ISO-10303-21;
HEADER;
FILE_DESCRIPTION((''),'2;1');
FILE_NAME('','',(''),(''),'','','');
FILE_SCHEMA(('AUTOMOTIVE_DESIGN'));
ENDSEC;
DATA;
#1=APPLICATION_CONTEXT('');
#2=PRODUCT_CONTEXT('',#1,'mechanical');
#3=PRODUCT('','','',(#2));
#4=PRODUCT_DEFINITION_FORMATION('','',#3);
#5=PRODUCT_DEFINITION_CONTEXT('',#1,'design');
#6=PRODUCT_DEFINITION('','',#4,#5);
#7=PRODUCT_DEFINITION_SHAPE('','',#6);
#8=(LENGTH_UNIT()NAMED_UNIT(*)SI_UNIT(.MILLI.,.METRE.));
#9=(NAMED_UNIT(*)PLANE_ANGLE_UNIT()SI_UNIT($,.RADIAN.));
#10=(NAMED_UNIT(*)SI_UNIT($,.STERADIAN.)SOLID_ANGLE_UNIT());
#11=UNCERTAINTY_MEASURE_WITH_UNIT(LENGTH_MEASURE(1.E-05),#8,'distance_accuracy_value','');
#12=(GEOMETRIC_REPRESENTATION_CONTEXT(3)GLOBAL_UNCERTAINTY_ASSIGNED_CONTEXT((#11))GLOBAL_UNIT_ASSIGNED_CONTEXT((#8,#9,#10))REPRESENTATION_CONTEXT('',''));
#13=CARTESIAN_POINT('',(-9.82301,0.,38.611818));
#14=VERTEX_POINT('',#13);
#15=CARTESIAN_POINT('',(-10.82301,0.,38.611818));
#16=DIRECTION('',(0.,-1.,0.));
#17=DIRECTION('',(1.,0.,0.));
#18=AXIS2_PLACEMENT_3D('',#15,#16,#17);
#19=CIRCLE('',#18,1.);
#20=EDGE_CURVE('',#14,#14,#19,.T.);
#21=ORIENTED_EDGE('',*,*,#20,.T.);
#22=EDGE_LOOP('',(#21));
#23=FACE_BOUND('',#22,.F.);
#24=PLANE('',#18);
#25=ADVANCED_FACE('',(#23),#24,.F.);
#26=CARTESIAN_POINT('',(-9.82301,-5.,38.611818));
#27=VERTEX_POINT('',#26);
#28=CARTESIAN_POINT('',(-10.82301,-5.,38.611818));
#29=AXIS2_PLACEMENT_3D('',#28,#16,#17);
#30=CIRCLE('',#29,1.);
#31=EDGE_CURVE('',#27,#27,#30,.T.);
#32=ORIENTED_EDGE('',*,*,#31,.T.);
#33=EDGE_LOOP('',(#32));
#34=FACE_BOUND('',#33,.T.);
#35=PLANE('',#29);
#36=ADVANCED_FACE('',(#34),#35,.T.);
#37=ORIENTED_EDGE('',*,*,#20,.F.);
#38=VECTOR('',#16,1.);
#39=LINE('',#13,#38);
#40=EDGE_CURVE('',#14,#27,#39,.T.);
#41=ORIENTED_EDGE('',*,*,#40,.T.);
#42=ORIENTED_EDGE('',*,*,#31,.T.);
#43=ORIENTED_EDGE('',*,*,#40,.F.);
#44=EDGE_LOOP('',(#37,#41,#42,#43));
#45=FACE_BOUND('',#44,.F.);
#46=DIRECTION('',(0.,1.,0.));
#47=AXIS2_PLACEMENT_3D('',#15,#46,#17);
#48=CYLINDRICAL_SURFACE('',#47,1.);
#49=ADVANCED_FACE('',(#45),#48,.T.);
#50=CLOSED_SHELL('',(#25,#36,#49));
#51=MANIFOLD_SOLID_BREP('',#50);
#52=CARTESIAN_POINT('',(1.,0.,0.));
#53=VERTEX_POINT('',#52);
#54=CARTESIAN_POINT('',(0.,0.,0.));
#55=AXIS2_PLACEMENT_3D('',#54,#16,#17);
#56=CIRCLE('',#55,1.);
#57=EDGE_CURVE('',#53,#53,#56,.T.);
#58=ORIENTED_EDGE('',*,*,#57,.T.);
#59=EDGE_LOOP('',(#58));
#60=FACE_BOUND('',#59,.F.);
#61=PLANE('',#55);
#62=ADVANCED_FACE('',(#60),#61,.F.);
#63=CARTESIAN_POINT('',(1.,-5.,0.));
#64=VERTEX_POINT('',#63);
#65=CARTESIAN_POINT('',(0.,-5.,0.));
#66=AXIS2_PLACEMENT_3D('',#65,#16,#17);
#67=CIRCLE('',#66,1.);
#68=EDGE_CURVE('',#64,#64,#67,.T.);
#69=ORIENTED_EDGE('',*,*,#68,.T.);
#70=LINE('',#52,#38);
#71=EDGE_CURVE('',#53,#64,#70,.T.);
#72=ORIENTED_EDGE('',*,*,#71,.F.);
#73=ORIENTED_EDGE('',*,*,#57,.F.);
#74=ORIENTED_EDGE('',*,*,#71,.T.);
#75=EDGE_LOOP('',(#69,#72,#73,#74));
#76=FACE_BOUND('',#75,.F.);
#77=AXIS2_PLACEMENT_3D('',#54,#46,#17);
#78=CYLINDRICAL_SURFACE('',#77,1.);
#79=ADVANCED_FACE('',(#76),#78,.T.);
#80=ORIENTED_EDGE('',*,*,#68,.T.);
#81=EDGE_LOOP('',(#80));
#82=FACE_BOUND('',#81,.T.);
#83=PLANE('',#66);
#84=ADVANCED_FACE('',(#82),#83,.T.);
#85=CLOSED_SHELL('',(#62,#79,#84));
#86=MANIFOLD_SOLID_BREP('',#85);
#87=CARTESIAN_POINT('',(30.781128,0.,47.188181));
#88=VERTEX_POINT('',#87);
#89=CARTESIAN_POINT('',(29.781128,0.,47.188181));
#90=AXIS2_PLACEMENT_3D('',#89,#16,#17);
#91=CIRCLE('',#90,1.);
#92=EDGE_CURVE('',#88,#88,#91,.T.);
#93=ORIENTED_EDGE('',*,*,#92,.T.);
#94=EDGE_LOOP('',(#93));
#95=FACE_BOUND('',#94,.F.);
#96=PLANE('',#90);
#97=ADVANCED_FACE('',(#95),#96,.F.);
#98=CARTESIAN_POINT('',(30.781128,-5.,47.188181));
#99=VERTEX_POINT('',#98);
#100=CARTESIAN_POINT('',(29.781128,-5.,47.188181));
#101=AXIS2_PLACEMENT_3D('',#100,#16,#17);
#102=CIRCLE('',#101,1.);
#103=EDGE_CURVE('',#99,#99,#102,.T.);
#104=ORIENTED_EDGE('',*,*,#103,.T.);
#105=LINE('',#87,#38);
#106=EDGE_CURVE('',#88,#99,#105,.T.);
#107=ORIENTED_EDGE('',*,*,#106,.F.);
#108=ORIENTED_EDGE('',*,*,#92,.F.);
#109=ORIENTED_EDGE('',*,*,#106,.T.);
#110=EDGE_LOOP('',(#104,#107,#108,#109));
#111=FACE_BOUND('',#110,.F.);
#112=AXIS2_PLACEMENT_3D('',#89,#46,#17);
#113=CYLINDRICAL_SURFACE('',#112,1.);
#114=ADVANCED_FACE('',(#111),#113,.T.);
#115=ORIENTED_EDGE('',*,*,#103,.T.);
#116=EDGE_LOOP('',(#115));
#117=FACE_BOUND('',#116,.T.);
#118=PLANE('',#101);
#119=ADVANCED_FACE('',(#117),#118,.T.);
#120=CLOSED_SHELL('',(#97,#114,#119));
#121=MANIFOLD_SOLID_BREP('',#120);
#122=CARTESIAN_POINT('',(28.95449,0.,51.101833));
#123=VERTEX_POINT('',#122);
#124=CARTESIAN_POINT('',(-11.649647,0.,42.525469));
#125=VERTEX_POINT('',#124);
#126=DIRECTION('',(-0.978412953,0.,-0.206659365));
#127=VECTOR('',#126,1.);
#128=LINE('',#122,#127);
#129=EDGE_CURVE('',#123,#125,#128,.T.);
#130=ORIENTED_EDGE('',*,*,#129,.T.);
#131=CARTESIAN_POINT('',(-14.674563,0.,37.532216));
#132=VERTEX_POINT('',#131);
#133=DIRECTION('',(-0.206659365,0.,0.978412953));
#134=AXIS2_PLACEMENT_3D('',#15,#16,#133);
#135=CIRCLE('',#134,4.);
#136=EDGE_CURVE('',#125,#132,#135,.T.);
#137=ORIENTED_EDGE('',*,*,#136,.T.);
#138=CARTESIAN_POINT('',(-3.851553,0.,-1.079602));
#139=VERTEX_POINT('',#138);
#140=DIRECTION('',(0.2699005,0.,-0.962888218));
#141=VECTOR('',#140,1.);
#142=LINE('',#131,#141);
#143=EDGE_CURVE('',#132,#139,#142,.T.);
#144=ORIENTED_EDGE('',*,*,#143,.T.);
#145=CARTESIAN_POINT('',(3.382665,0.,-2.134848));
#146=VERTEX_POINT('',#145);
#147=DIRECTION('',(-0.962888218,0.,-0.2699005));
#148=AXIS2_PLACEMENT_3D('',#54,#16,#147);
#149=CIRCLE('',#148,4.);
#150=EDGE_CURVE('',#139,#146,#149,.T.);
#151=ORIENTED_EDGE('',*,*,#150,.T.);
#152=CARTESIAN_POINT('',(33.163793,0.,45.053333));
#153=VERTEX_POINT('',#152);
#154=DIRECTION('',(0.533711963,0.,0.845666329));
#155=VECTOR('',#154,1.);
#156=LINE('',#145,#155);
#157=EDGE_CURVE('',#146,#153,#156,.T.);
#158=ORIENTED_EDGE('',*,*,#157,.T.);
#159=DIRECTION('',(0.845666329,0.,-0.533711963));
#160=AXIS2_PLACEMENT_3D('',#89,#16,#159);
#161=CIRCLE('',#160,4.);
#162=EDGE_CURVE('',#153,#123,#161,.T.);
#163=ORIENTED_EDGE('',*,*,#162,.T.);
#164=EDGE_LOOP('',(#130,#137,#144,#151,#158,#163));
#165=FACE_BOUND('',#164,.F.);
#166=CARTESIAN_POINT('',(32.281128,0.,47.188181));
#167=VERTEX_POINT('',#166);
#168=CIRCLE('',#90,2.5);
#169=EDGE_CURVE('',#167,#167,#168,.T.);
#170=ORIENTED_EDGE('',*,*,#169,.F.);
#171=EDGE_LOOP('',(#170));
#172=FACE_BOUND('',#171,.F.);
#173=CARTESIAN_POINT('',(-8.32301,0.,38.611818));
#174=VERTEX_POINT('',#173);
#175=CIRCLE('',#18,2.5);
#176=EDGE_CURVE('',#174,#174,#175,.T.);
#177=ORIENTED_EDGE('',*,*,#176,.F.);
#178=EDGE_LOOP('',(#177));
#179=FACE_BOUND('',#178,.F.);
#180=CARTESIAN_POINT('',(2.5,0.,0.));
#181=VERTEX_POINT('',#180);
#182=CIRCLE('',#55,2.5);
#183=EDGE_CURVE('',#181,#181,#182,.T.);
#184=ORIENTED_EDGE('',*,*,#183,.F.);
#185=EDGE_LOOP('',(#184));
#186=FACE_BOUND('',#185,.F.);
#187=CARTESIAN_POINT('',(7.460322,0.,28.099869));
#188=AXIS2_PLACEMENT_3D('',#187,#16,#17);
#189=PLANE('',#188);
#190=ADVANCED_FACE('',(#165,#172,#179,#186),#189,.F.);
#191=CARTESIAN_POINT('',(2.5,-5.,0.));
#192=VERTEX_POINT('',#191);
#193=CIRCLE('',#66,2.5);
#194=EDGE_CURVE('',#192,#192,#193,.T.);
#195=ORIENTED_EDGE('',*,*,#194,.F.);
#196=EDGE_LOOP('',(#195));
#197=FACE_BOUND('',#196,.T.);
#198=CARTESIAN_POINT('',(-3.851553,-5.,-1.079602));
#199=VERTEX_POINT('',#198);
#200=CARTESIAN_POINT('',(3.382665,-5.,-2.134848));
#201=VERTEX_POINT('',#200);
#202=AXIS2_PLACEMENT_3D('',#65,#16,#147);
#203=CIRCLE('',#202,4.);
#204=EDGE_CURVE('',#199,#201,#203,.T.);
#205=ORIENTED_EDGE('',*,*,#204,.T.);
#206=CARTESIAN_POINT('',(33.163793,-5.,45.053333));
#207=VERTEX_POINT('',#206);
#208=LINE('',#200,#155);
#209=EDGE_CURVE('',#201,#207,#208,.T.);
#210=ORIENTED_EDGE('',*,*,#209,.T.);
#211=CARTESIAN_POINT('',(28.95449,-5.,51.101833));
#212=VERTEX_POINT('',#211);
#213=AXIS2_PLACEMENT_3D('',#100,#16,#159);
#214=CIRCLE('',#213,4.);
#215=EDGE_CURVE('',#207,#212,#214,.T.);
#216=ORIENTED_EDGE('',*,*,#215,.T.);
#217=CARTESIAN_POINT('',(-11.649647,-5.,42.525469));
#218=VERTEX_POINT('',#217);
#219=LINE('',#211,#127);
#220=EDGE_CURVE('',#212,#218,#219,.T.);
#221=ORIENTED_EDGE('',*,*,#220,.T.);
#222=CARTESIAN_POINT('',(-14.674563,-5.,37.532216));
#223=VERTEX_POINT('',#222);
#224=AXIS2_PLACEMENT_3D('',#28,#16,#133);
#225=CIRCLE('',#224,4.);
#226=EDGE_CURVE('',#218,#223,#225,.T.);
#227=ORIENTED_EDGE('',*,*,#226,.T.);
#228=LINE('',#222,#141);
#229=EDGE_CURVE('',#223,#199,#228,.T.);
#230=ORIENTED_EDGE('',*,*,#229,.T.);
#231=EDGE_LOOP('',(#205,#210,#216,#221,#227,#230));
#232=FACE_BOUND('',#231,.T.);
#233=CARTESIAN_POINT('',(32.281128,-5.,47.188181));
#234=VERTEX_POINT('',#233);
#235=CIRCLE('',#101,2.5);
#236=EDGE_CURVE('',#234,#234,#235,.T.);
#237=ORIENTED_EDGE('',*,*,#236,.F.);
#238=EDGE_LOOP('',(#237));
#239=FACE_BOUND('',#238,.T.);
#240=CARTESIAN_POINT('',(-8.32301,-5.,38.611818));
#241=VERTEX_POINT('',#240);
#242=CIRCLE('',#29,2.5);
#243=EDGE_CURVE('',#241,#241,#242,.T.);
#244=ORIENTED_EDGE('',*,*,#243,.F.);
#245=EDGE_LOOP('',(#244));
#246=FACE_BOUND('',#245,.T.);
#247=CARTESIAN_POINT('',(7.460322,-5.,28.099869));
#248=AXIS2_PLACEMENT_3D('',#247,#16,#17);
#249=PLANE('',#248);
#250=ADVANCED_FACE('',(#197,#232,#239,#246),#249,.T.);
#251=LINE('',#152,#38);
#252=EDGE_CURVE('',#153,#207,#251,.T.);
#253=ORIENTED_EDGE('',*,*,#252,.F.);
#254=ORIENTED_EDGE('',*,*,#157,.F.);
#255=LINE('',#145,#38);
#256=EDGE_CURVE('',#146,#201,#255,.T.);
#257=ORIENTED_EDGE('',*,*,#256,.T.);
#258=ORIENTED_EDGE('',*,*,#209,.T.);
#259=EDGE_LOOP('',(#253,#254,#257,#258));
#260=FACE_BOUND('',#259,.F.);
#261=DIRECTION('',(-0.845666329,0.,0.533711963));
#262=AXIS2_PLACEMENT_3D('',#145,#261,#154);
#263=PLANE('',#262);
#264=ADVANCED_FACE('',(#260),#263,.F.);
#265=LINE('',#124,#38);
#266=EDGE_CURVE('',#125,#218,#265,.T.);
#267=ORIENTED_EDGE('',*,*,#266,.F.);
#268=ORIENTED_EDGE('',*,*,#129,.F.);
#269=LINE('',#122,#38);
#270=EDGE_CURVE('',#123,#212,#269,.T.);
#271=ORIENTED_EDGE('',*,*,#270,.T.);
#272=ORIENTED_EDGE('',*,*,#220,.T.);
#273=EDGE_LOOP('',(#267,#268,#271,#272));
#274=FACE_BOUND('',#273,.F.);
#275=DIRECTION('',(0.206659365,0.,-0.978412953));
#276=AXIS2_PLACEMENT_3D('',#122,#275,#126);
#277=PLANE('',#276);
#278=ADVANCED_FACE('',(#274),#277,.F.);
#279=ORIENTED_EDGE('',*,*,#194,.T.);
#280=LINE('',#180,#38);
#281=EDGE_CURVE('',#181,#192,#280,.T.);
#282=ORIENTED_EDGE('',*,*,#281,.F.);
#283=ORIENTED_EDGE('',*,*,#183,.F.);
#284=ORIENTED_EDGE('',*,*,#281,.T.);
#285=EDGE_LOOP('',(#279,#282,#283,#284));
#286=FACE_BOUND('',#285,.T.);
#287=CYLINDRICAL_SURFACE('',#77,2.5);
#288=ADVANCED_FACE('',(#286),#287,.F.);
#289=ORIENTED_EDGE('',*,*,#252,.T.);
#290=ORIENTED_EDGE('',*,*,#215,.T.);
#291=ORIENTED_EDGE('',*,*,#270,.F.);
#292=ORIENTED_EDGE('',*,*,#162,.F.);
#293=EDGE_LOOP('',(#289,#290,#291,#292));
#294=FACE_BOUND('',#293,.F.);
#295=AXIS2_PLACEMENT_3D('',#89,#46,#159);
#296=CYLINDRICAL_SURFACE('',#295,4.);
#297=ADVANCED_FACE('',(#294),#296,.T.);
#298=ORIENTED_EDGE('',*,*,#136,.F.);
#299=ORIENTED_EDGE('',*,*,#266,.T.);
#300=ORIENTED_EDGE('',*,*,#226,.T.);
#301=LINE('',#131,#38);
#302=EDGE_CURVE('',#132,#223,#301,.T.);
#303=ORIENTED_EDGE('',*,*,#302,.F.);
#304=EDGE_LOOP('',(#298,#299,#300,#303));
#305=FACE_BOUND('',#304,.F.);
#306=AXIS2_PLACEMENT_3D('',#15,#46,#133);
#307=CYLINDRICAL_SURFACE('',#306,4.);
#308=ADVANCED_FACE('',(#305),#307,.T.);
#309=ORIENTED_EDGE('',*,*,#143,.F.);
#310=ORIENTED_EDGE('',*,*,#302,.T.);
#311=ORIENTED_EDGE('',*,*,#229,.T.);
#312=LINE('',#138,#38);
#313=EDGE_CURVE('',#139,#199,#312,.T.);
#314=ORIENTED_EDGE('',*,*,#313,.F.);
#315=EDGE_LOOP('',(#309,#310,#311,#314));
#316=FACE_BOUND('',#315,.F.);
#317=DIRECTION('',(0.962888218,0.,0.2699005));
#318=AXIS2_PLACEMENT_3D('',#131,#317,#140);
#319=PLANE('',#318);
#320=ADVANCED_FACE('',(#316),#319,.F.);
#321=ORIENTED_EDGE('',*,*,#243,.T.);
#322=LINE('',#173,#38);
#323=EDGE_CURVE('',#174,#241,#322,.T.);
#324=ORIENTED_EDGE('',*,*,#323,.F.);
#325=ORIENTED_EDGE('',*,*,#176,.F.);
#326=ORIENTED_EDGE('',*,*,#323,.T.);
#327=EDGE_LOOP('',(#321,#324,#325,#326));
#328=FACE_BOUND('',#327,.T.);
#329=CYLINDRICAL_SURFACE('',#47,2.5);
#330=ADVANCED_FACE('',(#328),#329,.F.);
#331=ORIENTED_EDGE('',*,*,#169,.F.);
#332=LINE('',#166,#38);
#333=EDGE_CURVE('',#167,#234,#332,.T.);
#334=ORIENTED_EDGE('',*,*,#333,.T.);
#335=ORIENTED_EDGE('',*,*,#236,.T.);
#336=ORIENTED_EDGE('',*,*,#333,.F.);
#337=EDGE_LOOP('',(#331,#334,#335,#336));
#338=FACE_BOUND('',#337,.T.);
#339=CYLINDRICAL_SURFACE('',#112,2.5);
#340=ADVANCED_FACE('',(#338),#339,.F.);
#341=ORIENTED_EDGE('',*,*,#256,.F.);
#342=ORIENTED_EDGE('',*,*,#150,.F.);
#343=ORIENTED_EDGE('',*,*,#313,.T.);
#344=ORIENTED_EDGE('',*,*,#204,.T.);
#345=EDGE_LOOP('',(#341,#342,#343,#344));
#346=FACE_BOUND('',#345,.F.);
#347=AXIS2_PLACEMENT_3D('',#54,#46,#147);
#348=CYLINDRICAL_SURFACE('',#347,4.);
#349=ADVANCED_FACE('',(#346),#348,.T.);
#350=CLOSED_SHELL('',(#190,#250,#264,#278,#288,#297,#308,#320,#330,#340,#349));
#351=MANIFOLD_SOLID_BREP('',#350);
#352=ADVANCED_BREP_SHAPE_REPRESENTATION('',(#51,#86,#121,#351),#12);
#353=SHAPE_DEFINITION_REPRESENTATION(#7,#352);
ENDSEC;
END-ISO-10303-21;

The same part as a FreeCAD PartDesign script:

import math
import FreeCAD as App
import Part
import Sketcher

V = App.Vector
Q = App.Units.Quantity

doc = App.newDocument("Part")
body = doc.addObject("PartDesign::Body", "Body")

# Sketch on XZ plane
sketch1 = body.newObject("Sketcher::SketchObject", "Sketch")
sketch1.AttachmentSupport = (doc.getObject("XZ_Plane"), [""])
sketch1.MapMode = "FlatFace"
sketch1.addGeometry(Part.Circle(V(-10.82301, 38.611818, 0), V(0, 0, 1), 1), False)
sketch1.addConstraint(Sketcher.Constraint("Diameter", 0, Q("2 mm")))
sketch1.addConstraint(Sketcher.Constraint("DistanceX", 0, 3, -1, 1, Q("10.82301 mm")))
sketch1.addConstraint(Sketcher.Constraint("DistanceY", -1, 1, 0, 3, Q("38.611818 mm")))
pad1 = body.newObject("PartDesign::Pad", "Pad")
pad1.Profile = sketch1
pad1.Length = 5
body2 = doc.addObject("PartDesign::Body", "Body001")

# Sketch on XZ plane
sketch2 = body2.newObject("Sketcher::SketchObject", "Sketch001")
sketch2.AttachmentSupport = (doc.getObject("XZ_Plane001"), [""])
sketch2.MapMode = "FlatFace"
sketch2.addGeometry(Part.LineSegment(V(-14.674563, 37.532216, 0), V(-3.851553, -1.079602, 0)), False)
sketch2.addGeometry(Part.ArcOfCircle(Part.Circle(V(0, 0, 0), V(0, 0, 1), 4), math.radians(-164.341654), math.radians(-32.256602)), False)
sketch2.addGeometry(Part.LineSegment(V(3.382665, -2.134848, 0), V(33.163793, 45.053333, 0)), False)
sketch2.addGeometry(Part.ArcOfCircle(Part.Circle(V(29.781128, 47.188181, 0), V(0, 0, 1), 4), math.radians(-32.256602), math.radians(101.926654)), False)
sketch2.addGeometry(Part.LineSegment(V(28.95449, 51.101833, 0), V(-11.649647, 42.525469, 0)), False)
sketch2.addGeometry(Part.ArcOfCircle(Part.Circle(V(-10.82301, 38.611818, 0), V(0, 0, 1), 4), math.radians(101.926654), math.radians(195.658346)), False)
sketch2.addGeometry(Part.Circle(V(0, 0, 0), V(0, 0, 1), 2.5), False)
sketch2.addGeometry(Part.Circle(V(-10.82301, 38.611818, 0), V(0, 0, 1), 2.5), False)
sketch2.addGeometry(Part.Circle(V(29.781128, 47.188181, 0), V(0, 0, 1), 2.5), False)
sketch2.addConstraint(Sketcher.Constraint("Tangent", 0, 2, 1, 1))
sketch2.addConstraint(Sketcher.Constraint("Tangent", 1, 2, 2, 1))
sketch2.addConstraint(Sketcher.Constraint("Tangent", 2, 2, 3, 1))
sketch2.addConstraint(Sketcher.Constraint("Tangent", 3, 2, 4, 1))
sketch2.addConstraint(Sketcher.Constraint("Tangent", 4, 2, 5, 1))
sketch2.addConstraint(Sketcher.Constraint("Tangent", 5, 2, 0, 1))
sketch2.addConstraint(Sketcher.Constraint("Coincident", 1, 3, -1, 1))
sketch2.addConstraint(Sketcher.Constraint("Coincident", 6, 3, -1, 1))
sketch2.addConstraint(Sketcher.Constraint("Coincident", 7, 3, 5, 3))
sketch2.addConstraint(Sketcher.Constraint("Coincident", 8, 3, 3, 3))
sketch2.addConstraint(Sketcher.Constraint("Equal", 1, 3))
sketch2.addConstraint(Sketcher.Constraint("Equal", 3, 5))
sketch2.addConstraint(Sketcher.Constraint("Equal", 6, 7))
sketch2.addConstraint(Sketcher.Constraint("Equal", 7, 8))
sketch2.addConstraint(Sketcher.Constraint("Diameter", 6, Q("5 mm")))
sketch2.addConstraint(Sketcher.Constraint("Radius", 1, Q("4 mm")))
sketch2.addConstraint(Sketcher.Constraint("Distance", 0, Q("40.1 mm")))
sketch2.addConstraint(Sketcher.Constraint("Distance", 2, Q("55.8 mm")))
sketch2.addConstraint(Sketcher.Constraint("Distance", 4, Q("41.5 mm")))
sketch2.addConstraint(Sketcher.Constraint("DistanceY", 0, 2, -1, 1, Q("1.079602 mm")))
pad2 = body2.newObject("PartDesign::Pad", "Pad001")
pad2.Profile = sketch2
pad2.Length = 5
body3 = doc.addObject("PartDesign::Body", "Body002")

# Sketch on XZ plane
sketch3 = body3.newObject("Sketcher::SketchObject", "Sketch002")
sketch3.AttachmentSupport = (doc.getObject("XZ_Plane002"), [""])
sketch3.MapMode = "FlatFace"
sketch3.addGeometry(Part.Circle(V(29.781128, 47.188181, 0), V(0, 0, 1), 1), False)
sketch3.addConstraint(Sketcher.Constraint("Diameter", 0, Q("2 mm")))
sketch3.addConstraint(Sketcher.Constraint("DistanceY", -1, 1, 0, 3, Q("47.188181 mm")))
sketch3.addConstraint(Sketcher.Constraint("DistanceX", -1, 1, 0, 3, Q("29.781128 mm")))
pad3 = body3.newObject("PartDesign::Pad", "Pad002")
pad3.Profile = sketch3
pad3.Length = 5
body4 = doc.addObject("PartDesign::Body", "Body003")

# Sketch on XZ plane
sketch4 = body4.newObject("Sketcher::SketchObject", "Sketch003")
sketch4.AttachmentSupport = (doc.getObject("XZ_Plane003"), [""])
sketch4.MapMode = "FlatFace"
sketch4.addGeometry(Part.Circle(V(0, 0, 0), V(0, 0, 1), 1), False)
sketch4.addConstraint(Sketcher.Constraint("Coincident", 0, 3, -1, 1))
sketch4.addConstraint(Sketcher.Constraint("Diameter", 0, Q("2 mm")))
pad4 = body4.newObject("PartDesign::Pad", "Pad003")
pad4.Profile = sketch4
pad4.Length = 5

doc.recompute()
